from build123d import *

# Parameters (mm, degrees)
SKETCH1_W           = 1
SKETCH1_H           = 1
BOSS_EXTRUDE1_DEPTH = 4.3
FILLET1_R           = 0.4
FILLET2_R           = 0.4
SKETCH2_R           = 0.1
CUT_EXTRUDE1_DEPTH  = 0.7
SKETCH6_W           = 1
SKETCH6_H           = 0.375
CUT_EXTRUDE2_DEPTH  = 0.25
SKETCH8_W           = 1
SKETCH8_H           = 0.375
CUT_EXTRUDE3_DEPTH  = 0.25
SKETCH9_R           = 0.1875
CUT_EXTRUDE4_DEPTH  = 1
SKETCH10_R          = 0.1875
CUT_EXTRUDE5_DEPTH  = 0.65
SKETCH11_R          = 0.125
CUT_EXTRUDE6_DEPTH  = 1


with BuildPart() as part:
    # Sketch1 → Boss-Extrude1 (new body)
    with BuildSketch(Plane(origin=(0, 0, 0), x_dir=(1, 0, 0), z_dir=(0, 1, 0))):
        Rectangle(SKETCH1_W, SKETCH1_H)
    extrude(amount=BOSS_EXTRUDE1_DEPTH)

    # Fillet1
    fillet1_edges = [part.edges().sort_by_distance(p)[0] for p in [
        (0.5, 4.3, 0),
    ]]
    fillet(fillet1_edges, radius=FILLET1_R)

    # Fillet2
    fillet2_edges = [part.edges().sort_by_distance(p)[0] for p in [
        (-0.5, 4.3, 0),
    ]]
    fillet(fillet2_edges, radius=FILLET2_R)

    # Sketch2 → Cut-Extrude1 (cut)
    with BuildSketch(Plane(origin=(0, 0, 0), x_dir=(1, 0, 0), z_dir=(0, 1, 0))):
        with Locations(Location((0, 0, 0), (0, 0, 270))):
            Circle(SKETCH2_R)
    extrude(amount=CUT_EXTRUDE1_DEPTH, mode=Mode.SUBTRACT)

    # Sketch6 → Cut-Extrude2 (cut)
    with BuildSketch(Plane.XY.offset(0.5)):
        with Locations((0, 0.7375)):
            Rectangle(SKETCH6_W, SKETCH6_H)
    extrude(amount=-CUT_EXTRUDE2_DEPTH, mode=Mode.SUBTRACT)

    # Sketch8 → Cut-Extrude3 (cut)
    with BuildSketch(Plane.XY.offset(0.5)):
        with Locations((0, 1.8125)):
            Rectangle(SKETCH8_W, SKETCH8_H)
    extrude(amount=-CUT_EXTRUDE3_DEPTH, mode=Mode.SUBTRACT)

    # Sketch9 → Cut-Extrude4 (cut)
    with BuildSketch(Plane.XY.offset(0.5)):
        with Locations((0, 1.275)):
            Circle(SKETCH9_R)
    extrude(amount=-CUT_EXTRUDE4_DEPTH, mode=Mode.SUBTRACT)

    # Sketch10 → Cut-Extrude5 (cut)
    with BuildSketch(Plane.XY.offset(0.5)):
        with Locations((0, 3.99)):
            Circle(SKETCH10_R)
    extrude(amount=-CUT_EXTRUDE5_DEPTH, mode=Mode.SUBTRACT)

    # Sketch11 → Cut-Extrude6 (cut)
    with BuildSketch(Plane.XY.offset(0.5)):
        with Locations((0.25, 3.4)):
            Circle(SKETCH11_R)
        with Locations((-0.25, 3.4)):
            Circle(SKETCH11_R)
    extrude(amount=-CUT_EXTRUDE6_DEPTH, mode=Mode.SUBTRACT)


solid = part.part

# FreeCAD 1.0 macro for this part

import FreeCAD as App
import Part
import Sketcher
from FreeCAD import Vector


def edges_at(feature, points):
    """Names of the edges that pass closest to the given points."""
    edges = feature.Shape.Edges
    near = lambda p: min(range(len(edges)), key=lambda i: edges[i].distToShape(Part.Vertex(*p))[0])
    return sorted({f"Edge{near(p) + 1}" for p in points})


def add_polygon(sketch, points):
    """Adds a closed chain of lines whose ends are joined by coincident constraints."""
    first, n = sketch.GeometryCount, len(points)
    for a, b in zip(points, points[1:] + points[:1]):
        sketch.addGeometry(Part.LineSegment(App.Vector(*a, 0), App.Vector(*b, 0)), False)
    for i in range(n):
        sketch.addConstraint(Sketcher.Constraint("Coincident", first + i, 2, first + (i + 1) % n, 1))

doc = App.newDocument("Part")
body = doc.addObject("PartDesign::Body", "Body")

# Sketch on XZ plane
sketch1 = doc.addObject("Sketcher::SketchObject", "Sketch")
body.addObject(sketch1)
sketch1.AttachmentSupport = (doc.XZ_Plane, [""])
sketch1.MapMode = "FlatFace"
add_polygon(sketch1, [(-0.5, -0.5), (-0.5, 0.5), (0.5, 0.5), (0.5, -0.5)])  # lines 0-3
sketch1.addConstraint([
    Sketcher.Constraint("Vertical", 0),
    Sketcher.Constraint("Horizontal", 1),
    Sketcher.Constraint("Vertical", 2),
    Sketcher.Constraint("Horizontal", 3),
    Sketcher.Constraint("Symmetric", 0, 2, 2, 2, -1, 1),
    Sketcher.Constraint("Equal", 3, 0),
    Sketcher.Constraint("DistanceX", 1, 1, 1, 2, 1.0),
])
pad1 = doc.addObject("PartDesign::Pad", "Pad")
body.addObject(pad1)
pad1.Profile = sketch1
pad1.Length = 4.3
pad1.Reversed = True
doc.recompute()

fillet = doc.addObject("PartDesign::Fillet", "Fillet")
body.addObject(fillet)
fillet.Base = (pad1, edges_at(pad1, [(0.5, 4.3, 0)]))
fillet.Radius = 0.4
doc.recompute()

fillet2 = doc.addObject("PartDesign::Fillet", "Fillet001")
body.addObject(fillet2)
fillet2.Base = (fillet, edges_at(fillet, [(-0.5, 4.3, 0)]))
fillet2.Radius = 0.4

# Sketch on XZ plane
sketch2 = doc.addObject("Sketcher::SketchObject", "Sketch001")
body.addObject(sketch2)
sketch2.AttachmentSupport = (doc.XZ_Plane, [""])
sketch2.MapMode = "FlatFace"
sketch2.addGeometry(Part.Circle(Vector(0, 0, 0), Vector(0, 0, 1), 0.1), False)
sketch2.addConstraint([
    Sketcher.Constraint("Coincident", 0, 3, -1, 1),
    Sketcher.Constraint("Diameter", 0, 0.2),
])
pocket1 = doc.addObject("PartDesign::Pocket", "Pocket")
body.addObject(pocket1)
pocket1.Profile = sketch2
pocket1.Length = 0.7

# Sketch on XY plane
sketch3 = doc.addObject("Sketcher::SketchObject", "Sketch002")
body.addObject(sketch3)
sketch3.AttachmentSupport = (doc.XY_Plane, [""])
sketch3.MapMode = "FlatFace"
sketch3.AttachmentOffset = App.Placement(Vector(0, 0, 0.5), App.Rotation())
add_polygon(sketch3, [(-0.5, 0.93), (-0.5, 0.55), (0.5, 0.55), (0.5, 0.93)])  # lines 0-3
sketch3.addConstraint([
    Sketcher.Constraint("Vertical", 0),
    Sketcher.Constraint("Horizontal", 1),
    Sketcher.Constraint("Vertical", 2),
    Sketcher.Constraint("Horizontal", 3),
    Sketcher.Constraint("DistanceX", 1, 1, 1, 2, 1.0),
    Sketcher.Constraint("DistanceX", 0, 2, -1, 1, 0.5),
    Sketcher.Constraint("DistanceY", 0, 2, 0, 1, 0.375),
    Sketcher.Constraint("DistanceY", -1, 1, 0, 2, 0.55),
])
pocket2 = doc.addObject("PartDesign::Pocket", "Pocket001")
body.addObject(pocket2)
pocket2.Profile = sketch3
pocket2.Length = 0.25

# Sketch on XY plane
sketch4 = doc.addObject("Sketcher::SketchObject", "Sketch003")
body.addObject(sketch4)
sketch4.AttachmentSupport = (doc.XY_Plane, [""])
sketch4.MapMode = "FlatFace"
sketch4.AttachmentOffset = App.Placement(Vector(0, 0, 0.5), App.Rotation())
add_polygon(sketch4, [(-0.5, 2), (-0.5, 1.62), (0.5, 1.62), (0.5, 2)])  # lines 0-3
sketch4.addConstraint([
    Sketcher.Constraint("Vertical", 0),
    Sketcher.Constraint("Horizontal", 1),
    Sketcher.Constraint("Vertical", 2),
    Sketcher.Constraint("Horizontal", 3),
    Sketcher.Constraint("DistanceX", 1, 1, 1, 2, 1.0),
    Sketcher.Constraint("DistanceY", -1, 1, 2, 2, 2.0),
    Sketcher.Constraint("DistanceX", 0, 2, -1, 1, 0.5),
    Sketcher.Constraint("DistanceY", 0, 2, 0, 1, 0.375),
])
pocket3 = doc.addObject("PartDesign::Pocket", "Pocket002")
body.addObject(pocket3)
pocket3.Profile = sketch4
pocket3.Length = 0.25

# Sketch on XY plane
sketch5 = doc.addObject("Sketcher::SketchObject", "Sketch004")
body.addObject(sketch5)
sketch5.AttachmentSupport = (doc.XY_Plane, [""])
sketch5.MapMode = "FlatFace"
sketch5.AttachmentOffset = App.Placement(Vector(0, 0, 0.5), App.Rotation())
sketch5.addGeometry(Part.Circle(Vector(0, 1.27, 0), Vector(0, 0, 1), 0.19), False)
sketch5.addConstraint([
    Sketcher.Constraint("PointOnObject", 0, 3, -2),
    Sketcher.Constraint("Diameter", 0, 0.375),
    Sketcher.Constraint("DistanceY", -1, 1, 0, 3, 1.275),
])
pocket4 = doc.addObject("PartDesign::Pocket", "Pocket003")
body.addObject(pocket4)
pocket4.Profile = sketch5
pocket4.Length = 1

# Sketch on XY plane
sketch6 = doc.addObject("Sketcher::SketchObject", "Sketch005")
body.addObject(sketch6)
sketch6.AttachmentSupport = (doc.XY_Plane, [""])
sketch6.MapMode = "FlatFace"
sketch6.AttachmentOffset = App.Placement(Vector(0, 0, 0.5), App.Rotation())
sketch6.addGeometry(Part.Circle(Vector(0, 3.99, 0), Vector(0, 0, 1), 0.19), False)
sketch6.addConstraint([
    Sketcher.Constraint("PointOnObject", 0, 3, -2),
    Sketcher.Constraint("Diameter", 0, 0.375),
    Sketcher.Constraint("DistanceY", -1, 1, 0, 3, 3.99),
])
pocket5 = doc.addObject("PartDesign::Pocket", "Pocket004")
body.addObject(pocket5)
pocket5.Profile = sketch6
pocket5.Length = 0.65

# Sketch on XY plane
sketch7 = doc.addObject("Sketcher::SketchObject", "Sketch006")
body.addObject(sketch7)
sketch7.AttachmentSupport = (doc.XY_Plane, [""])
sketch7.MapMode = "FlatFace"
sketch7.AttachmentOffset = App.Placement(Vector(0, 0, 0.5), App.Rotation())
sketch7.addGeometry([
    Part.Circle(Vector(0.25, 3.4, 0), Vector(0, 0, 1), 0.12),
    Part.Circle(Vector(-0.25, 3.4, 0), Vector(0, 0, 1), 0.12),
], False)
sketch7.addConstraint([
    Sketcher.Constraint("Equal", 0, 1),
    Sketcher.Constraint("Symmetric", 0, 3, 1, 3, -2),
    Sketcher.Constraint("Diameter", 0, 0.25),
    Sketcher.Constraint("DistanceY", -1, 1, 0, 3, 3.4),
    Sketcher.Constraint("DistanceX", 1, 3, 0, 3, 0.5),
])
pocket6 = doc.addObject("PartDesign::Pocket", "Pocket005")
body.addObject(pocket6)
pocket6.Profile = sketch7
pocket6.Length = 1

doc.recompute()
